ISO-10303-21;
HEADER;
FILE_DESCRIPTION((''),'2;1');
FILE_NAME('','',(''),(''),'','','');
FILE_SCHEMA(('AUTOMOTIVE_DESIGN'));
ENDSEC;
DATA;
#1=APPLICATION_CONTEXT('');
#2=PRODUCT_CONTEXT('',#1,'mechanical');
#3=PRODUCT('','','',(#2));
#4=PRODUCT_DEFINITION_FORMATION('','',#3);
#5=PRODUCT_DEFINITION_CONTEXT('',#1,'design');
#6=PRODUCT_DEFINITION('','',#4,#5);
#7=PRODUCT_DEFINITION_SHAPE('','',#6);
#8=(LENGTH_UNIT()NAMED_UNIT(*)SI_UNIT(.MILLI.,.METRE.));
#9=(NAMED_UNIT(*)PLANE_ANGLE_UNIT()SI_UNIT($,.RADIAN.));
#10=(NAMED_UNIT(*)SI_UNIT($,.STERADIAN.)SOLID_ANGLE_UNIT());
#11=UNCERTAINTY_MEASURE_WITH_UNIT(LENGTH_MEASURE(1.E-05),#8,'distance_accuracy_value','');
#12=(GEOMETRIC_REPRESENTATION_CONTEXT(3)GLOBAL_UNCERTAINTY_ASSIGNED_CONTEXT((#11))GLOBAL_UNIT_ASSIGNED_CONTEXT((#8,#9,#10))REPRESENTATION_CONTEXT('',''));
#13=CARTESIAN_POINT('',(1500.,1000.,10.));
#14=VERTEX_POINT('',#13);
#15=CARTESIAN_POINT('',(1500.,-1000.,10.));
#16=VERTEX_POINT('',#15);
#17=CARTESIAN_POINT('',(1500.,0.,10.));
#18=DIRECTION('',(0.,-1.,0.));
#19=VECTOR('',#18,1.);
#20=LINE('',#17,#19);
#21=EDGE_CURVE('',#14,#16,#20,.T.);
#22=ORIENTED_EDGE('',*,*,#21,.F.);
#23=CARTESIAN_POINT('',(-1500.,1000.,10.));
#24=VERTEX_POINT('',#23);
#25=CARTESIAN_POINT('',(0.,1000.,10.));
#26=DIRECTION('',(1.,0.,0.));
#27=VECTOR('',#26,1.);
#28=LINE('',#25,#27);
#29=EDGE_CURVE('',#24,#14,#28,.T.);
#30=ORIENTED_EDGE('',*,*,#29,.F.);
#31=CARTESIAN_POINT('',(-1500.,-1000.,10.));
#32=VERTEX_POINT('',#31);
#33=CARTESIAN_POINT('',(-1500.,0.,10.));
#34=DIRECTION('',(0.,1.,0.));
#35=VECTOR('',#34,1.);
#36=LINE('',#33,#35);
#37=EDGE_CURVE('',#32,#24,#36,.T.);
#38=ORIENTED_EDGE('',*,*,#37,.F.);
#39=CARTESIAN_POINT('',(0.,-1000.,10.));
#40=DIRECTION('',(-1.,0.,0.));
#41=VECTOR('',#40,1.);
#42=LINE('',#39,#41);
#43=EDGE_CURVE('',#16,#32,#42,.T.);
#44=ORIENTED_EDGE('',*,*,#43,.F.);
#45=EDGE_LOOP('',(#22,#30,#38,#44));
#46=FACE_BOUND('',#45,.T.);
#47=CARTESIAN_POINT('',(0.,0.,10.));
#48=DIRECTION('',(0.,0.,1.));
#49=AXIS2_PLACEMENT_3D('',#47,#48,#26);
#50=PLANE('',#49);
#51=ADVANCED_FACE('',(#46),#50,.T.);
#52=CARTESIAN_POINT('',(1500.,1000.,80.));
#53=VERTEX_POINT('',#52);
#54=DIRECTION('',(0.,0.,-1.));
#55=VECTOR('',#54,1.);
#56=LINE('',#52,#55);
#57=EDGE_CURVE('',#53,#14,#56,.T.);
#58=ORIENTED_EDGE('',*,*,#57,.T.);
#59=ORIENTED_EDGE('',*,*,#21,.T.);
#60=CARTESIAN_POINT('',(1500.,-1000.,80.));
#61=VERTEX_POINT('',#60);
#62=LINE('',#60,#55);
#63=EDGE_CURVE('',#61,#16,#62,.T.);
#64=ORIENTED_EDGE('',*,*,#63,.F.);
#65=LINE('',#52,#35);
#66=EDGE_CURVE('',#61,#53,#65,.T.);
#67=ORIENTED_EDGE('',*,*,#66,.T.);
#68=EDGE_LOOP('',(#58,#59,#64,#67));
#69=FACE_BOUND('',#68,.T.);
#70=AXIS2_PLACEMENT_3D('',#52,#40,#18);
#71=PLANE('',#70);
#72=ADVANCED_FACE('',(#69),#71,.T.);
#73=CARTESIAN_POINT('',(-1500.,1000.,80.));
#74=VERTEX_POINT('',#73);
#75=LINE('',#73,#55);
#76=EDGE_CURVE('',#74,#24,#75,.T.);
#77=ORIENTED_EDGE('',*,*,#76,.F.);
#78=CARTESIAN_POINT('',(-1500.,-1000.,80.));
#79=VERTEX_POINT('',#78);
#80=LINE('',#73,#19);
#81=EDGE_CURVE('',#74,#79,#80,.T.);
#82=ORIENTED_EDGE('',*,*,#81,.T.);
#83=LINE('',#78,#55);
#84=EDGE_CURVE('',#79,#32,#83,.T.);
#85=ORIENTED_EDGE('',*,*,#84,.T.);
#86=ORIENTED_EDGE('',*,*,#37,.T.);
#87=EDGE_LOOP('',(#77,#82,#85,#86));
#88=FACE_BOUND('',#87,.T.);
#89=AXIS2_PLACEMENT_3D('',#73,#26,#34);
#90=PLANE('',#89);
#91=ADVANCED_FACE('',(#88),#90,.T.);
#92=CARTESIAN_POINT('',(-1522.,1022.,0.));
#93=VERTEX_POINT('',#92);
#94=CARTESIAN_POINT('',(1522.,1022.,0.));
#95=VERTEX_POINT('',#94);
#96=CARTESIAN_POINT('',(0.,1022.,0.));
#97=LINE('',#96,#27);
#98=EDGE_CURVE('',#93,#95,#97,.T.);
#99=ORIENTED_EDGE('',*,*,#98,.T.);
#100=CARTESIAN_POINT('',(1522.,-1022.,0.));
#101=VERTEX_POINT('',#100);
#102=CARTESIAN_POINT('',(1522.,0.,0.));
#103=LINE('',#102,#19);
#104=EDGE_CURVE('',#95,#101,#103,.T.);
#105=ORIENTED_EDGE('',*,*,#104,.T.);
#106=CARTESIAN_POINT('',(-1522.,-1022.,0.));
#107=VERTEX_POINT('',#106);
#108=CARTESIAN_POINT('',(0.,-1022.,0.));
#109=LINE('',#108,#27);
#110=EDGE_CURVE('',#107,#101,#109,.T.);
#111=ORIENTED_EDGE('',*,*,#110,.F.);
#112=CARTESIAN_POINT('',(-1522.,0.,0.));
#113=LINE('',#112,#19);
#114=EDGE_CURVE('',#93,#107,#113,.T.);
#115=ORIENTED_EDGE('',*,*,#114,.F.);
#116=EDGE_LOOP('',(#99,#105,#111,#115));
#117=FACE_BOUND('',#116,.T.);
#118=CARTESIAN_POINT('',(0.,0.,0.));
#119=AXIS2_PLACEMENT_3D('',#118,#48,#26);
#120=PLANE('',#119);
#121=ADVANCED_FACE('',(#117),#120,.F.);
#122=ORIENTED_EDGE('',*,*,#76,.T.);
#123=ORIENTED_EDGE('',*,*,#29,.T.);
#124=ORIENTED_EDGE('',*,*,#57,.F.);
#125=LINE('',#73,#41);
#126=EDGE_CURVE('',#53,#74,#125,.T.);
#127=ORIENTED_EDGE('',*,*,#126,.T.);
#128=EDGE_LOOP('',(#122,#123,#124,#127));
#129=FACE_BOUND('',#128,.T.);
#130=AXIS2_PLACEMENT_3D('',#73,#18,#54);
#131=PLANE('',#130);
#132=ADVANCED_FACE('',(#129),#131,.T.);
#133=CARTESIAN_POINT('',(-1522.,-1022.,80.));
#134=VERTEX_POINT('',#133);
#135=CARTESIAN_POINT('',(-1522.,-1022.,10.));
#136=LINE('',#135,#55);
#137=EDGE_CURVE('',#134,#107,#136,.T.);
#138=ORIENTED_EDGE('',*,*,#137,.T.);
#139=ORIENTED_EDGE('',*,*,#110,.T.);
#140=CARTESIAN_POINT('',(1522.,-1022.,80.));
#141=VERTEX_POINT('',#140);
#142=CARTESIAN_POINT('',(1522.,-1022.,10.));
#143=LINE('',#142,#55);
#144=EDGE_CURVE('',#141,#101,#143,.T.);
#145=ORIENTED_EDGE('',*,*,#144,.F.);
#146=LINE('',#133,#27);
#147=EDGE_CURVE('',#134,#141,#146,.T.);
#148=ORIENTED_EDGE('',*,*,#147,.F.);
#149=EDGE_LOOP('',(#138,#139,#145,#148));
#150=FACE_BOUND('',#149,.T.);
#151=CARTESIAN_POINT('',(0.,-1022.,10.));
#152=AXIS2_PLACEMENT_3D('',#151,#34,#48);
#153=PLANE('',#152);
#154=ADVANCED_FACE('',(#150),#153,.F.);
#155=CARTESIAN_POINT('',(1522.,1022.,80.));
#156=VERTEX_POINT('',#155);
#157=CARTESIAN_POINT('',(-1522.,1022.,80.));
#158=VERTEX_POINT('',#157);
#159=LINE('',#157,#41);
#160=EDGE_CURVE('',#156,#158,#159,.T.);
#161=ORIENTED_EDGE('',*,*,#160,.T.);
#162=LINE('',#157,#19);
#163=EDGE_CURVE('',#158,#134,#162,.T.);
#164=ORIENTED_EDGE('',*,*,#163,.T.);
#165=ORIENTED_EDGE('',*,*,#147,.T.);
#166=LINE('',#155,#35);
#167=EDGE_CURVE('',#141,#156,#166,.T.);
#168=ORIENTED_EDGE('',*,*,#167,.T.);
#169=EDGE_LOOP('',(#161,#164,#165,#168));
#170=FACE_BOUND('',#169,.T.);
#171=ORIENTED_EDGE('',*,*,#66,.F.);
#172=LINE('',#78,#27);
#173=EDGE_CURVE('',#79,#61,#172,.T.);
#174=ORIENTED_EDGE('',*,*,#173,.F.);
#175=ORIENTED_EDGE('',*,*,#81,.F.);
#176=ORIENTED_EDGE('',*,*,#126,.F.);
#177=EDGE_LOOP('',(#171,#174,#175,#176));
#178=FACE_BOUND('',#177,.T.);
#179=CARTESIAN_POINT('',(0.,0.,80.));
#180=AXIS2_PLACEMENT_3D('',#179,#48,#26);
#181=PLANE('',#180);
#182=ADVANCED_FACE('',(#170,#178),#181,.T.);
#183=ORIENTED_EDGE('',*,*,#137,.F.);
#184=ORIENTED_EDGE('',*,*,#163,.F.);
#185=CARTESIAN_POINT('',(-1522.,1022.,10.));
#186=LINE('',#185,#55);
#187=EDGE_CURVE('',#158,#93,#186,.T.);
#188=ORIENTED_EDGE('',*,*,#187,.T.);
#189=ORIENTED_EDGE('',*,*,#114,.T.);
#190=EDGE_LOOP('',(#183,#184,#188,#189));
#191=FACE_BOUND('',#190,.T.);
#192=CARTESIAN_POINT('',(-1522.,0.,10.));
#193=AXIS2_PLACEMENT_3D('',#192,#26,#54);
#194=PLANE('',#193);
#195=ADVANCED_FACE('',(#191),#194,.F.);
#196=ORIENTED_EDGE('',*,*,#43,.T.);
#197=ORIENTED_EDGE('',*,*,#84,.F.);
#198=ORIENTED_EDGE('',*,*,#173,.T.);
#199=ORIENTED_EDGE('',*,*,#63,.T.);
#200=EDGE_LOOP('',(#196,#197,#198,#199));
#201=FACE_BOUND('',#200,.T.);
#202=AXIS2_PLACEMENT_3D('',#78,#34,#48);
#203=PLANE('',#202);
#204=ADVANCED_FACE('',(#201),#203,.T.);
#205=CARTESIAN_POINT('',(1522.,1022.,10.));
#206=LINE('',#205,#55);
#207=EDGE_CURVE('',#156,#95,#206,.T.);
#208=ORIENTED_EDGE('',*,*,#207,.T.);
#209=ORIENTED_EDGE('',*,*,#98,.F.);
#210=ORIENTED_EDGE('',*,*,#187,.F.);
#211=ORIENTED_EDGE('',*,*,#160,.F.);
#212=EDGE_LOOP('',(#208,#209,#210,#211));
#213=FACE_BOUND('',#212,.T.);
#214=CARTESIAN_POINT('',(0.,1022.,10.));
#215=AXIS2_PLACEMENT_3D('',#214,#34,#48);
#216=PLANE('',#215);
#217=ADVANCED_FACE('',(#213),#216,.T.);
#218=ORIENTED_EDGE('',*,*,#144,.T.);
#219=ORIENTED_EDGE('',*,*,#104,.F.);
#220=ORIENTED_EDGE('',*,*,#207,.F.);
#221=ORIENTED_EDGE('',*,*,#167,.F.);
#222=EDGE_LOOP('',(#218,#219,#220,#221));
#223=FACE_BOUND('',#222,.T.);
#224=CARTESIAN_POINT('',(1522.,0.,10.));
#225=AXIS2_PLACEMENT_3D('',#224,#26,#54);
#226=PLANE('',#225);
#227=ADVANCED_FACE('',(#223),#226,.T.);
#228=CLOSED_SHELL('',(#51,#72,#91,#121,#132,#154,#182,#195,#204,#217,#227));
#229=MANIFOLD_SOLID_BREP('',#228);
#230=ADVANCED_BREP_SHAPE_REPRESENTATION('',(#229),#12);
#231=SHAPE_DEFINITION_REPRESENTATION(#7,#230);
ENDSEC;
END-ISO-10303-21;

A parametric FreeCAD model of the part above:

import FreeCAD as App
import Part
import Sketcher
from FreeCAD import Vector

doc = App.newDocument("Part")
body = doc.addObject("PartDesign::Body", "Body")

sketch1 = body.newObject("Sketcher::SketchObject", "Sketch")
sketch1.AttachmentSupport = (doc.getObject("XY_Plane"), [""])
sketch1.MapMode = "FlatFace"
sketch1.addGeometry([
    Part.LineSegment(Vector(-1522, 1022, 0), Vector(-1522, -1022, 0)),
    Part.LineSegment(Vector(-1522, -1022, 0), Vector(1522, -1022, 0)),
    Part.LineSegment(Vector(1522, -1022, 0), Vector(1522, 1022, 0)),
    Part.LineSegment(Vector(1522, 1022, 0), Vector(-1522, 1022, 0)),
], False)
sketch1.addConstraint([
    Sketcher.Constraint("Coincident", 0, 2, 1, 1),
    Sketcher.Constraint("Coincident", 1, 2, 2, 1),
    Sketcher.Constraint("Coincident", 2, 2, 3, 1),
    Sketcher.Constraint("Coincident", 3, 2, 0, 1),
    Sketcher.Constraint("Vertical", 0),
    Sketcher.Constraint("Horizontal", 1),
    Sketcher.Constraint("Vertical", 2),
    Sketcher.Constraint("Horizontal", 3),
    Sketcher.Constraint("Symmetric", 0, 2, 2, 2, -1, 1),
    Sketcher.Constraint("DistanceX", 1, 1, 1, 2, 3044.0),
    Sketcher.Constraint("DistanceY", 0, 2, 0, 1, 2044.0),
])
pad1 = body.newObject("PartDesign::Pad", "Pad")
pad1.Profile = sketch1
pad1.Length = 10

sketch2 = body.newObject("Sketcher::SketchObject", "Sketch001")
sketch2.AttachmentSupport = (doc.getObject("XY_Plane"), [""])
sketch2.MapMode = "FlatFace"
sketch2.addGeometry([
    Part.LineSegment(Vector(-1522, 1022, 0), Vector(-1522, -1022, 0)),
    Part.LineSegment(Vector(-1522, -1022, 0), Vector(1522, -1022, 0)),
    Part.LineSegment(Vector(1522, -1022, 0), Vector(1522, 1022, 0)),
    Part.LineSegment(Vector(1522, 1022, 0), Vector(-1522, 1022, 0)),
    Part.LineSegment(Vector(1500, -1000, 0), Vector(-1500, -1000, 0)),
    Part.LineSegment(Vector(-1500, -1000, 0), Vector(-1500, 1000, 0)),
    Part.LineSegment(Vector(-1500, 1000, 0), Vector(1500, 1000, 0)),
    Part.LineSegment(Vector(1500, 1000, 0), Vector(1500, -1000, 0)),
], False)
sketch2.addConstraint([
    Sketcher.Constraint("Coincident", 0, 2, 1, 1),
    Sketcher.Constraint("Coincident", 1, 2, 2, 1),
    Sketcher.Constraint("Coincident", 2, 2, 3, 1),
    Sketcher.Constraint("Coincident", 3, 2, 0, 1),
    Sketcher.Constraint("Coincident", 4, 2, 5, 1),
    Sketcher.Constraint("Coincident", 5, 2, 6, 1),
    Sketcher.Constraint("Coincident", 6, 2, 7, 1),
    Sketcher.Constraint("Coincident", 7, 2, 4, 1),
    Sketcher.Constraint("Vertical", 0),
    Sketcher.Constraint("Horizontal", 1),
    Sketcher.Constraint("Vertical", 2),
    Sketcher.Constraint("Horizontal", 3),
    Sketcher.Constraint("Horizontal", 4),
    Sketcher.Constraint("Vertical", 5),
    Sketcher.Constraint("Horizontal", 6),
    Sketcher.Constraint("Vertical", 7),
    Sketcher.Constraint("Symmetric", 0, 2, 2, 2, -1, 1),
    Sketcher.Constraint("Symmetric", 4, 2, 6, 2, -1, 1),
    Sketcher.Constraint("DistanceX", 1, 1, 1, 2, 3044.0),
    Sketcher.Constraint("DistanceX", 4, 2, 4, 1, 3000.0),
    Sketcher.Constraint("DistanceY", 0, 2, 0, 1, 2044.0),
    Sketcher.Constraint("DistanceY", 5, 1, 5, 2, 2000.0),
])
pad2 = body.newObject("PartDesign::Pad", "Pad001")
pad2.Profile = sketch2
pad2.Length = 80

doc.recompute()
